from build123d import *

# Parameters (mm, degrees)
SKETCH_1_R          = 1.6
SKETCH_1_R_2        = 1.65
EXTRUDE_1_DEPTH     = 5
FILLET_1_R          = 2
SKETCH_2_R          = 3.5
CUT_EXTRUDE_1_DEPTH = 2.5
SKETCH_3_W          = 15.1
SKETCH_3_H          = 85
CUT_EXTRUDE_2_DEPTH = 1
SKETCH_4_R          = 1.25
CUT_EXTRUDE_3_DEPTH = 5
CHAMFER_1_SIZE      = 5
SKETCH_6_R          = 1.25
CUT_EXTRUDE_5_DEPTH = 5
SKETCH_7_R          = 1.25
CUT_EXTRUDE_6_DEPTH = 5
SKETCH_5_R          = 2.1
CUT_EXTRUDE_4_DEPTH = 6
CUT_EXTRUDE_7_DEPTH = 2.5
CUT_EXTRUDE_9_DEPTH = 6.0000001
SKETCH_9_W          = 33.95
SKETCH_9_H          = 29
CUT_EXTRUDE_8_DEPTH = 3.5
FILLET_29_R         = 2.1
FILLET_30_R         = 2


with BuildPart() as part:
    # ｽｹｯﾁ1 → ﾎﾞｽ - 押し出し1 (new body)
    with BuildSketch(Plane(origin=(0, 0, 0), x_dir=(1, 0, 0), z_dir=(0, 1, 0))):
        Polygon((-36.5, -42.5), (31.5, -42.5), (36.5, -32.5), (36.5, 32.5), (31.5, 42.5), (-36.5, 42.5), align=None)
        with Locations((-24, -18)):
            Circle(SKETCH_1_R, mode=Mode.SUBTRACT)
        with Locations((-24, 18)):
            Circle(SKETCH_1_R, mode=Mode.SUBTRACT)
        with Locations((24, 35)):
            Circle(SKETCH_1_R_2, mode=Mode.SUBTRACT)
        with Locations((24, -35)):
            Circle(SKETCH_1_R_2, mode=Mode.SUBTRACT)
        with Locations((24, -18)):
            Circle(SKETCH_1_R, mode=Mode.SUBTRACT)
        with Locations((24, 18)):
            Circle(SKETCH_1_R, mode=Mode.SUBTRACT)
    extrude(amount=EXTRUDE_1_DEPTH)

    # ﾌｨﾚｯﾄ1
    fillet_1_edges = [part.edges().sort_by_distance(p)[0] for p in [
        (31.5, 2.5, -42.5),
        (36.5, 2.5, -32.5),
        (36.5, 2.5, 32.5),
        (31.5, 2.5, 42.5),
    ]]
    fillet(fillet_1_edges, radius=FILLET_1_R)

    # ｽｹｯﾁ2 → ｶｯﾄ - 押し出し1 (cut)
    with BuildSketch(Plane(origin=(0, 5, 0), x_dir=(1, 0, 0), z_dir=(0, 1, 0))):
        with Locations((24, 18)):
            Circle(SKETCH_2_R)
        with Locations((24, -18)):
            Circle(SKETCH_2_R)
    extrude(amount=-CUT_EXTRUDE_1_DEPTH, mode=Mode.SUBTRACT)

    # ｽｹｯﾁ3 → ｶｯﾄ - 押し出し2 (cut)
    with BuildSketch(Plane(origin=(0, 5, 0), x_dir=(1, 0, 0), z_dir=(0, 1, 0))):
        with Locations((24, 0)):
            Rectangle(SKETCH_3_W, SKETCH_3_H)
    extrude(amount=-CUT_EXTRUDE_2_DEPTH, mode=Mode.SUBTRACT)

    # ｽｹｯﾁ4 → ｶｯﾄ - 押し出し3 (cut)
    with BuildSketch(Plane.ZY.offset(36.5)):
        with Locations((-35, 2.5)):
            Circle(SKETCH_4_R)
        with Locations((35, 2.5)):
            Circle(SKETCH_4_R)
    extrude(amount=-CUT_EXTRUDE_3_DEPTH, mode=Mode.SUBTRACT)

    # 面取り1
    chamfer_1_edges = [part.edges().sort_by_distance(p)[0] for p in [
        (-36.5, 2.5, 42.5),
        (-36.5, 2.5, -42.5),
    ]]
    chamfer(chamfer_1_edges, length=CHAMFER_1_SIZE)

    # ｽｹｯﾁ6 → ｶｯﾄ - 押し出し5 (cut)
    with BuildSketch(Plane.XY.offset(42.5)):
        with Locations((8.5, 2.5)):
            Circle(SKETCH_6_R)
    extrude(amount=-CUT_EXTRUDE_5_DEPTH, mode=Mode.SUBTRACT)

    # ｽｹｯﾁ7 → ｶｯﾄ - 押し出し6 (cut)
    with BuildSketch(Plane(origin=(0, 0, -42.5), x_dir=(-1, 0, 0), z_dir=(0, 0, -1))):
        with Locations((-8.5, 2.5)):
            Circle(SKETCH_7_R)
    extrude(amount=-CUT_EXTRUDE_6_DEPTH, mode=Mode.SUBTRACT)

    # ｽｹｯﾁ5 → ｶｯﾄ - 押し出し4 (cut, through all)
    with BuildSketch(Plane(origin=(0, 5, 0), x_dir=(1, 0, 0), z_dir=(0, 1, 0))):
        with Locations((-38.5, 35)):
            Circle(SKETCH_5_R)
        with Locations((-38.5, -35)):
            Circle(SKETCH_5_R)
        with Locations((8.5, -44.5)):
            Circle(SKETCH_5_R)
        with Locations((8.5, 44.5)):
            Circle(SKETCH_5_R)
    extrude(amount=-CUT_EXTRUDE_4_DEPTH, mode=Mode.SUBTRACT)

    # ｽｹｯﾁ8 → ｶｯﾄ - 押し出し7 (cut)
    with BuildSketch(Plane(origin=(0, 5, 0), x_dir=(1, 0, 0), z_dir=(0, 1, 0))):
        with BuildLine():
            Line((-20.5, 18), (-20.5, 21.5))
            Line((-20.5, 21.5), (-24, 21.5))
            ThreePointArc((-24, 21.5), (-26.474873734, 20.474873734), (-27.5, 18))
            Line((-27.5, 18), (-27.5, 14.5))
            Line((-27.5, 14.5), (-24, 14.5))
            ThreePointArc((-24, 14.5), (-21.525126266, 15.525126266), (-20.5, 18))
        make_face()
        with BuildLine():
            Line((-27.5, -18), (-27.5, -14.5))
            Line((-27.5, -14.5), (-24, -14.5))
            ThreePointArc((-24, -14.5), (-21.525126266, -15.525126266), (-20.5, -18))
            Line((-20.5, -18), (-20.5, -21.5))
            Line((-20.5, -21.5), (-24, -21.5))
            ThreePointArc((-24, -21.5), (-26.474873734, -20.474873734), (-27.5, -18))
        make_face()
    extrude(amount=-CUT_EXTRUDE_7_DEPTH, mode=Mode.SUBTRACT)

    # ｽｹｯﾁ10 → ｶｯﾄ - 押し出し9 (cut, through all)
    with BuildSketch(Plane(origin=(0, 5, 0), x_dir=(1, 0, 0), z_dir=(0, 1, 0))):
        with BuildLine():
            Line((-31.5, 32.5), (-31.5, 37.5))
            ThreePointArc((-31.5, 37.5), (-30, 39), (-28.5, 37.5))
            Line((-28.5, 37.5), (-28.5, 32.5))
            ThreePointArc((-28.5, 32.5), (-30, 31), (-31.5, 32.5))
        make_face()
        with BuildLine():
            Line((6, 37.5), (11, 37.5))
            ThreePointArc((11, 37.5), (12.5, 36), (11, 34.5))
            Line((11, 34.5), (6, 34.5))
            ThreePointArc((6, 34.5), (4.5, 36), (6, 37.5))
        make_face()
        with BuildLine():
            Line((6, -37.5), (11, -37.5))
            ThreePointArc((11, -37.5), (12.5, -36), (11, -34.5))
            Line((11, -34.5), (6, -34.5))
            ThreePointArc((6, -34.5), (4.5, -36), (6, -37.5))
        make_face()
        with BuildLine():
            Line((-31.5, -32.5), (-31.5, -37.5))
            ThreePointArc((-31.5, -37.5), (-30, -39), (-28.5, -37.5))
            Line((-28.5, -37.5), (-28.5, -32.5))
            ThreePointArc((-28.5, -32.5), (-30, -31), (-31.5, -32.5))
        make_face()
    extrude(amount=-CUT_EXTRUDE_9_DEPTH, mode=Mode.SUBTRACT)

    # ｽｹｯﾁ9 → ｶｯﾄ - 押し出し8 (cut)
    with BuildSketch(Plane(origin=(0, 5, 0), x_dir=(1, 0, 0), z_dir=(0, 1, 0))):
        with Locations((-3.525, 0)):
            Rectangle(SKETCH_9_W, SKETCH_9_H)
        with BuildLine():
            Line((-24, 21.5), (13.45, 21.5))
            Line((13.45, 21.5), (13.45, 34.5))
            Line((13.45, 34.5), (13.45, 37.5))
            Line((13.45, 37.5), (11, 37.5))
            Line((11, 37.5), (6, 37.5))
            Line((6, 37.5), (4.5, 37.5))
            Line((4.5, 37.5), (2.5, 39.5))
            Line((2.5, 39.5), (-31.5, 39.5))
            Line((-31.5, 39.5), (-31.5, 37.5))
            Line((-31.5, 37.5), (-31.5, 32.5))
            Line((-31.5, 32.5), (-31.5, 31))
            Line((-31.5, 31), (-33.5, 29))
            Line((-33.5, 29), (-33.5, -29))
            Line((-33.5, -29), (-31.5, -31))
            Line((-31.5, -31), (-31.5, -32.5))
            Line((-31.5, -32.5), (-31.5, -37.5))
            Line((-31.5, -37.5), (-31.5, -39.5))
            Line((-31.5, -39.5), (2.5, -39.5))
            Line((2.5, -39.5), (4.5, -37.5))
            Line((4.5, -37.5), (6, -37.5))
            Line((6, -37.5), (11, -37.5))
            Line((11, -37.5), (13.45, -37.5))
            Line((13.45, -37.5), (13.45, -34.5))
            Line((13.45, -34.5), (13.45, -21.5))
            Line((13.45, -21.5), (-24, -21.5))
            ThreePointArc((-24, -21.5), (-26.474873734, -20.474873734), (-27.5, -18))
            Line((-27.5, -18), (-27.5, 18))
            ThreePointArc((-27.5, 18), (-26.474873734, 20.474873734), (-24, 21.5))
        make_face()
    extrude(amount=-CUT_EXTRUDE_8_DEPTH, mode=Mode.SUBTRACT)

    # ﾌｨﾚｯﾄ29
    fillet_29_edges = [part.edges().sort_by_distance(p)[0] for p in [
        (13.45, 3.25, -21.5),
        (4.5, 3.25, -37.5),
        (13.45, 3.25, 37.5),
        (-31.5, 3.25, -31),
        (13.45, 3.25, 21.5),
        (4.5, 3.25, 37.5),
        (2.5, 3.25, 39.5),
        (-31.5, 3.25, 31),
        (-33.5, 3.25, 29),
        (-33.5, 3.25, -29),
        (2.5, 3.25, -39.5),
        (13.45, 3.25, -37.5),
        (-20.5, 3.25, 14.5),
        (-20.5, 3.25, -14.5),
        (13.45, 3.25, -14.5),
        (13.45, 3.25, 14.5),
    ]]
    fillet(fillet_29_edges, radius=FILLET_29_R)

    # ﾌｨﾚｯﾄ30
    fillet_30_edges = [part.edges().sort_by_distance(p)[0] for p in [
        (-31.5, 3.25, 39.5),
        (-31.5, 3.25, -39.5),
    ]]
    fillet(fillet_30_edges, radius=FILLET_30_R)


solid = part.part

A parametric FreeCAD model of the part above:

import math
import FreeCAD as App
import Part
import Sketcher
Q = App.Units.Quantity


def edges_at(feature, points):
    """Names of the edges that pass closest to the given points."""
    edges = feature.Shape.Edges
    near = lambda p: min(range(len(edges)), key=lambda i: edges[i].distToShape(Part.Vertex(*p))[0])
    return sorted({f"Edge{near(p) + 1}" for p in points})


def add_polygon(sketch, points):
    """Adds a closed chain of lines whose ends are joined by coincident constraints."""
    first, n = sketch.GeometryCount, len(points)
    for a, b in zip(points, points[1:] + points[:1]):
        sketch.addGeometry(Part.LineSegment(App.Vector(*a, 0), App.Vector(*b, 0)), False)
    for i in range(n):
        sketch.addConstraint(Sketcher.Constraint("Coincident", first + i, 2, first + (i + 1) % n, 1))

doc = App.newDocument("Part")
body = doc.addObject("PartDesign::Body", "Body")

# Sketch on XZ plane
sketch1 = body.newObject("Sketcher::SketchObject", "Sketch")
sketch1.AttachmentSupport = (doc.getObject("XZ_Plane"), [""])
sketch1.MapMode = "FlatFace"
add_polygon(sketch1, [(-36.5, 42.5), (31.5, 42.5), (36.5, 32.5), (36.5, -32.5), (31.5, -42.5), (-36.5, -42.5)])  # lines 0-5
sketch1.addGeometry(Part.Circle(App.Vector(-24, 18, 0), App.Vector(0, 0, 1), 1.6), False)  # 6
sketch1.addGeometry(Part.Circle(App.Vector(24, 35, 0), App.Vector(0, 0, 1), 1.65), False)  # 7
sketch1.addGeometry(Part.Circle(App.Vector(24, 18, 0), App.Vector(0, 0, 1), 1.6), False)  # 8
sketch1.addGeometry(Part.Circle(App.Vector(-24, -18, 0), App.Vector(0, 0, 1), 1.6), False)  # 9
sketch1.addGeometry(Part.Circle(App.Vector(24, -18, 0), App.Vector(0, 0, 1), 1.6), False)  # 10
sketch1.addGeometry(Part.Circle(App.Vector(24, -35, 0), App.Vector(0, 0, 1), 1.65), False)  # 11
sketch1.addConstraint([
    Sketcher.Constraint("Horizontal", 0),
    Sketcher.Constraint("Vertical", 2),
    Sketcher.Constraint("Horizontal", 4),
    Sketcher.Constraint("Vertical", 5),
    Sketcher.Constraint("Equal", 6, 8),
    Sketcher.Constraint("Equal", 8, 9),
    Sketcher.Constraint("Equal", 9, 10),
    Sketcher.Constraint("Equal", 7, 11),
    Sketcher.Constraint("Symmetric", 8, 3, 9, 3, -1, 1),
    Sketcher.Constraint("Symmetric", 6, 3, 10, 3, -1, 1),
    Sketcher.Constraint("Symmetric", 6, 3, 8, 3, -2),
    Sketcher.Constraint("Symmetric", 7, 3, 11, 3, -1),
    Sketcher.Constraint("Symmetric", 0, 2, 3, 2, -1),
    Sketcher.Constraint("Vertical", 7, 3, 8, 3),
    Sketcher.Constraint("Equal", 1, 3),
    Sketcher.Constraint("Diameter", 6, Q("3.2 mm")),
    Sketcher.Constraint("Diameter", 7, Q("3.3 mm")),
    Sketcher.Constraint("DistanceX", 0, 1, 0, 2, Q("68 mm")),
    Sketcher.Constraint("DistanceY", 2, 2, 2, 1, Q("65 mm")),
    Sketcher.Constraint("DistanceY", 5, 1, 5, 2, Q("85 mm")),
    Sketcher.Constraint("DistanceX", 6, 3, -1, 1, Q("24 mm")),
    Sketcher.Constraint("DistanceY", -1, 1, 6, 3, Q("18 mm")),
    Sketcher.Constraint("DistanceY", -1, 1, 7, 3, Q("35 mm")),
    Sketcher.Constraint("DistanceX", 0, 2, 1, 2, Q("5 mm")),
    Sketcher.Constraint("DistanceX", -1, 1, 0, 2, Q("31.5 mm")),
])
pad1 = body.newObject("PartDesign::Pad", "Pad")
pad1.Profile = sketch1
pad1.Length = 5
pad1.Reversed = True
doc.recompute()

fillet = body.newObject("PartDesign::Fillet", "Fillet")
fillet.Base = (pad1, edges_at(pad1, [
    (31.5, 2.5, -42.5),
    (36.5, 2.5, -32.5),
    (36.5, 2.5, 32.5),
    (31.5, 2.5, 42.5),
]))
fillet.Radius = 2

# Sketch on XZ plane
sketch2 = body.newObject("Sketcher::SketchObject", "Sketch001")
sketch2.AttachmentSupport = (doc.getObject("XZ_Plane"), [""])
sketch2.MapMode = "FlatFace"
sketch2.AttachmentOffset = App.Placement(App.Vector(0, 0, -5), App.Rotation())
sketch2.addGeometry([
    Part.Circle(App.Vector(24, -18, 0), App.Vector(0, 0, 1), 3.5),
    Part.Circle(App.Vector(24, 18, 0), App.Vector(0, 0, 1), 3.5),
], False)
sketch2.addConstraint([
    Sketcher.Constraint("Equal", 0, 1),
    Sketcher.Constraint("Symmetric", 0, 3, 1, 3, -1),
    Sketcher.Constraint("Diameter", 0, Q("7 mm")),
    Sketcher.Constraint("DistanceX", -1, 1, 0, 3, Q("24 mm")),
    Sketcher.Constraint("DistanceY", 0, 3, -1, 1, Q("18 mm")),
])
pocket1 = body.newObject("PartDesign::Pocket", "Pocket")
pocket1.Profile = sketch2
pocket1.Length = 2.5
pocket1.Reversed = True

# Sketch on XZ plane
sketch3 = body.newObject("Sketcher::SketchObject", "Sketch002")
sketch3.AttachmentSupport = (doc.getObject("XZ_Plane"), [""])
sketch3.MapMode = "FlatFace"
sketch3.AttachmentOffset = App.Placement(App.Vector(0, 0, -5), App.Rotation())
add_polygon(sketch3, [(16.45, -42.5), (16.45, 42.5), (31.55, 42.5), (31.55, -42.5)])  # lines 0-3
sketch3.addConstraint([
    Sketcher.Constraint("Vertical", 0),
    Sketcher.Constraint("Horizontal", 1),
    Sketcher.Constraint("Vertical", 2),
    Sketcher.Constraint("Horizontal", 3),
    Sketcher.Constraint("DistanceY", 0, 1, 0, 2, Q("85 mm")),
    Sketcher.Constraint("DistanceX", 1, 1, 1, 2, Q("15.1 mm")),
    Sketcher.Constraint("DistanceY", -1, 1, 0, 2, Q("42.5 mm")),
    Sketcher.Constraint("DistanceX", -1, 1, 0, 2, Q("16.45 mm")),
])
pocket2 = body.newObject("PartDesign::Pocket", "Pocket001")
pocket2.Profile = sketch3
pocket2.Length = 1
pocket2.Reversed = True

# Sketch on YZ plane
sketch4 = body.newObject("Sketcher::SketchObject", "Sketch003")
sketch4.AttachmentSupport = (doc.getObject("YZ_Plane"), [""])
sketch4.MapMode = "FlatFace"
sketch4.AttachmentOffset = App.Placement(App.Vector(0, 0, -36.5), App.Rotation())
sketch4.addGeometry([
    Part.Circle(App.Vector(2.5, -35, 0), App.Vector(0, 0, 1), 1.25),
    Part.Circle(App.Vector(2.5, 35, 0), App.Vector(0, 0, 1), 1.25),
], False)
sketch4.addConstraint([
    Sketcher.Constraint("Equal", 0, 1),
    Sketcher.Constraint("Symmetric", 0, 3, 1, 3, -1),
    Sketcher.Constraint("Diameter", 0, Q("2.5 mm")),
    Sketcher.Constraint("DistanceY", 0, 3, -1, 1, Q("35 mm")),
    Sketcher.Constraint("DistanceX", -1, 1, 0, 3, Q("2.5 mm")),
])
pocket3 = body.newObject("PartDesign::Pocket", "Pocket002")
pocket3.Profile = sketch4
pocket3.Length = 5
pocket3.Reversed = True
doc.recompute()

chamfer = body.newObject("PartDesign::Chamfer", "Chamfer")
chamfer.Base = (pocket3, edges_at(pocket3, [(-36.5, 2.5, 42.5), (-36.5, 2.5, -42.5)]))
chamfer.Size = 5

# Sketch on XY plane
sketch5 = body.newObject("Sketcher::SketchObject", "Sketch004")
sketch5.AttachmentSupport = (doc.getObject("XY_Plane"), [""])
sketch5.MapMode = "FlatFace"
sketch5.AttachmentOffset = App.Placement(App.Vector(0, 0, 42.5), App.Rotation())
sketch5.addGeometry(Part.Circle(App.Vector(8.5, 2.5, 0), App.Vector(0, 0, 1), 1.25), False)
sketch5.addConstraint([
    Sketcher.Constraint("Diameter", 0, Q("2.5 mm")),
    Sketcher.Constraint("DistanceX", -1, 1, 0, 3, Q("8.5 mm")),
    Sketcher.Constraint("DistanceY", -1, 1, 0, 3, Q("2.5 mm")),
])
pocket4 = body.newObject("PartDesign::Pocket", "Pocket003")
pocket4.Profile = sketch5
pocket4.Length = 5

# Sketch on XY plane
sketch6 = body.newObject("Sketcher::SketchObject", "Sketch005")
sketch6.AttachmentSupport = (doc.getObject("XY_Plane"), [""])
sketch6.MapMode = "FlatFace"
sketch6.AttachmentOffset = App.Placement(App.Vector(0, 0, -42.5), App.Rotation())
sketch6.addGeometry(Part.Circle(App.Vector(8.5, 2.5, 0), App.Vector(0, 0, 1), 1.25), False)
sketch6.addConstraint([
    Sketcher.Constraint("Diameter", 0, Q("2.5 mm")),
    Sketcher.Constraint("DistanceX", -1, 1, 0, 3, Q("8.5 mm")),
    Sketcher.Constraint("DistanceY", -1, 1, 0, 3, Q("2.5 mm")),
])
pocket5 = body.newObject("PartDesign::Pocket", "Pocket004")
pocket5.Profile = sketch6
pocket5.Length = 5
pocket5.Reversed = True

# Sketch on XZ plane
sketch7 = body.newObject("Sketcher::SketchObject", "Sketch006")
sketch7.AttachmentSupport = (doc.getObject("XZ_Plane"), [""])
sketch7.MapMode = "FlatFace"
sketch7.AttachmentOffset = App.Placement(App.Vector(0, 0, -5), App.Rotation())
sketch7.addGeometry([
    Part.Circle(App.Vector(-38.5, -35, 0), App.Vector(0, 0, 1), 2.1),
    Part.Circle(App.Vector(-38.5, 35, 0), App.Vector(0, 0, 1), 2.1),
    Part.Circle(App.Vector(8.5, 44.5, 0), App.Vector(0, 0, 1), 2.1),
    Part.Circle(App.Vector(8.5, -44.5, 0), App.Vector(0, 0, 1), 2.1),
], False)
sketch7.addConstraint([
    Sketcher.Constraint("Equal", 0, 1),
    Sketcher.Constraint("Equal", 1, 2),
    Sketcher.Constraint("Equal", 2, 3),
    Sketcher.Constraint("Symmetric", 0, 3, 1, 3, -1),
    Sketcher.Constraint("Symmetric", 2, 3, 3, 3, -1),
    Sketcher.Constraint("Diameter", 0, Q("4.2 mm")),
    Sketcher.Constraint("DistanceY", 0, 3, -1, 1, Q("35 mm")),
    Sketcher.Constraint("DistanceX", 1, 3, 2, 3, Q("47 mm")),
    Sketcher.Constraint("DistanceY", 3, 3, 2, 3, Q("89 mm")),
    Sketcher.Constraint("DistanceX", 0, 3, -1, 1, Q("38.5 mm")),
])
pocket6 = body.newObject("PartDesign::Pocket", "Pocket005")
pocket6.Profile = sketch7
pocket6.Type = "ThroughAll"
pocket6.Reversed = True

# Sketch on XZ plane
sketch8 = body.newObject("Sketcher::SketchObject", "Sketch007")
sketch8.AttachmentSupport = (doc.getObject("XZ_Plane"), [""])
sketch8.MapMode = "FlatFace"
sketch8.AttachmentOffset = App.Placement(App.Vector(0, 0, -5), App.Rotation())
sketch8.addGeometry([
    Part.LineSegment(App.Vector(-20.5, -18, 0), App.Vector(-20.5, -21.5, 0)),  # 0
    Part.LineSegment(App.Vector(-20.5, -21.5, 0), App.Vector(-24, -21.5, 0)),  # 1
    Part.ArcOfCircle(Part.Circle(App.Vector(-24, -18, 0), App.Vector(0, 0, 1), 3.5), math.radians(-180), math.radians(-90)),  # 2
    Part.LineSegment(App.Vector(-27.5, -18, 0), App.Vector(-27.5, -14.5, 0)),  # 3
    Part.LineSegment(App.Vector(-27.5, -14.5, 0), App.Vector(-24, -14.5, 0)),  # 4
    Part.ArcOfCircle(Part.Circle(App.Vector(-24, -18, 0), App.Vector(0, 0, 1), 3.5), math.radians(0), math.radians(90)),  # 5
    Part.LineSegment(App.Vector(-27.5, 14.5, 0), App.Vector(-27.5, 18, 0)),  # 6
    Part.ArcOfCircle(Part.Circle(App.Vector(-24, 18, 0), App.Vector(0, 0, 1), 3.5), math.radians(90), math.radians(180)),  # 7
    Part.LineSegment(App.Vector(-24, 21.5, 0), App.Vector(-20.5, 21.5, 0)),  # 8
    Part.LineSegment(App.Vector(-20.5, 21.5, 0), App.Vector(-20.5, 18, 0)),  # 9
    Part.ArcOfCircle(Part.Circle(App.Vector(-24, 18, 0), App.Vector(0, 0, 1), 3.5), math.radians(-90), math.radians(0)),  # 10
    Part.LineSegment(App.Vector(-24, 14.5, 0), App.Vector(-27.5, 14.5, 0)),  # 11
], False)
sketch8.addConstraint([
    Sketcher.Constraint("Coincident", 0, 2, 1, 1),
    Sketcher.Constraint("Tangent", 1, 2, 2, 2),
    Sketcher.Constraint("Tangent", 2, 1, 3, 1),
    Sketcher.Constraint("Coincident", 3, 2, 4, 1),
    Sketcher.Constraint("Tangent", 4, 2, 5, 2),
    Sketcher.Constraint("Tangent", 5, 1, 0, 1),
    Sketcher.Constraint("Tangent", 6, 2, 7, 2),
    Sketcher.Constraint("Tangent", 7, 1, 8, 1),
    Sketcher.Constraint("Coincident", 8, 2, 9, 1),
    Sketcher.Constraint("Tangent", 9, 2, 10, 2),
    Sketcher.Constraint("Tangent", 10, 1, 11, 1),
    Sketcher.Constraint("Coincident", 11, 2, 6, 1),
    Sketcher.Constraint("Vertical", 0),
    Sketcher.Constraint("Horizontal", 1),
    Sketcher.Constraint("Vertical", 3),
    Sketcher.Constraint("Horizontal", 4),
    Sketcher.Constraint("Vertical", 6),
    Sketcher.Constraint("Horizontal", 8),
    Sketcher.Constraint("Vertical", 9),
    Sketcher.Constraint("Horizontal", 11),
    Sketcher.Constraint("Coincident", 5, 3, 2, 3),
    Sketcher.Constraint("Coincident", 10, 3, 7, 3),
    Sketcher.Constraint("Equal", 2, 5),
    Sketcher.Constraint("Equal", 5, 7),
    Sketcher.Constraint("Equal", 7, 10),
    Sketcher.Constraint("Symmetric", 2, 3, 7, 3, -1),
    Sketcher.Constraint("Radius", 2, Q("3.5 mm")),
    Sketcher.Constraint("DistanceX", 2, 3, -1, 1, Q("24 mm")),
    Sketcher.Constraint("DistanceY", 2, 3, -1, 1, Q("18 mm")),
])
pocket7 = body.newObject("PartDesign::Pocket", "Pocket006")
pocket7.Profile = sketch8
pocket7.Length = 2.5
pocket7.Reversed = True

# Sketch on XZ plane
sketch9 = body.newObject("Sketcher::SketchObject", "Sketch008")
sketch9.AttachmentSupport = (doc.getObject("XZ_Plane"), [""])
sketch9.MapMode = "FlatFace"
sketch9.AttachmentOffset = App.Placement(App.Vector(0, 0, -5), App.Rotation())
sketch9.addGeometry([
    Part.LineSegment(App.Vector(-31.5, -37.5, 0), App.Vector(-31.5, -32.5, 0)),  # 0
    Part.ArcOfCircle(Part.Circle(App.Vector(-30, -32.5, 0), App.Vector(0, 0, 1), 1.5), math.radians(0), math.radians(180)),  # 1
    Part.LineSegment(App.Vector(-28.5, -32.5, 0), App.Vector(-28.5, -37.5, 0)),  # 2
    Part.ArcOfCircle(Part.Circle(App.Vector(-30, -37.5, 0), App.Vector(0, 0, 1), 1.5), math.radians(180), math.radians(360)),  # 3
    Part.LineSegment(App.Vector(11, -37.5, 0), App.Vector(6, -37.5, 0)),  # 4
    Part.ArcOfCircle(Part.Circle(App.Vector(6, -36, 0), App.Vector(0, 0, 1), 1.5), math.radians(90), math.radians(270)),  # 5
    Part.LineSegment(App.Vector(6, -34.5, 0), App.Vector(11, -34.5, 0)),  # 6
    Part.ArcOfCircle(Part.Circle(App.Vector(11, -36, 0), App.Vector(0, 0, 1), 1.5), math.radians(-90), math.radians(90)),  # 7
    Part.LineSegment(App.Vector(6, 37.5, 0), App.Vector(11, 37.5, 0)),  # 8
    Part.ArcOfCircle(Part.Circle(App.Vector(11, 36, 0), App.Vector(0, 0, 1), 1.5), math.radians(-90), math.radians(90)),  # 9
    Part.LineSegment(App.Vector(11, 34.5, 0), App.Vector(6, 34.5, 0)),  # 10
    Part.ArcOfCircle(Part.Circle(App.Vector(6, 36, 0), App.Vector(0, 0, 1), 1.5), math.radians(90), math.radians(270)),  # 11
    Part.LineSegment(App.Vector(-31.5, 32.5, 0), App.Vector(-31.5, 37.5, 0)),  # 12
    Part.ArcOfCircle(Part.Circle(App.Vector(-30, 37.5, 0), App.Vector(0, 0, 1), 1.5), math.radians(0), math.radians(180)),  # 13
    Part.LineSegment(App.Vector(-28.5, 37.5, 0), App.Vector(-28.5, 32.5, 0)),  # 14
    Part.ArcOfCircle(Part.Circle(App.Vector(-30, 32.5, 0), App.Vector(0, 0, 1), 1.5), math.radians(180), math.radians(360)),  # 15
], False)
sketch9.addConstraint([
    Sketcher.Constraint("Tangent", 0, 2, 1, 2),
    Sketcher.Constraint("Tangent", 1, 1, 2, 1),
    Sketcher.Constraint("Tangent", 2, 2, 3, 2),
    Sketcher.Constraint("Tangent", 3, 1, 0, 1),
    Sketcher.Constraint("Tangent", 4, 2, 5, 2),
    Sketcher.Constraint("Tangent", 5, 1, 6, 1),
    Sketcher.Constraint("Tangent", 6, 2, 7, 2),
    Sketcher.Constraint("Tangent", 7, 1, 4, 1),
    Sketcher.Constraint("Tangent", 8, 2, 9, 2),
    Sketcher.Constraint("Tangent", 9, 1, 10, 1),
    Sketcher.Constraint("Tangent", 10, 2, 11, 2),
    Sketcher.Constraint("Tangent", 11, 1, 8, 1),
    Sketcher.Constraint("Tangent", 12, 2, 13, 2),
    Sketcher.Constraint("Tangent", 13, 1, 14, 1),
    Sketcher.Constraint("Tangent", 14, 2, 15, 2),
    Sketcher.Constraint("Tangent", 15, 1, 12, 1),
    Sketcher.Constraint("Vertical", 0),
    Sketcher.Constraint("Vertical", 2),
    Sketcher.Constraint("Horizontal", 4),
    Sketcher.Constraint("Horizontal", 6),
    Sketcher.Constraint("Horizontal", 8),
    Sketcher.Constraint("Horizontal", 10),
    Sketcher.Constraint("Vertical", 12),
    Sketcher.Constraint("Vertical", 14),
    Sketcher.Constraint("Equal", 3, 5),
    Sketcher.Constraint("Equal", 7, 9),
    Sketcher.Constraint("Equal", 11, 13),
    Sketcher.Constraint("Symmetric", 7, 3, 9, 3, -1),
    Sketcher.Constraint("Symmetric", 3, 3, 13, 3, -1),
    Sketcher.Constraint("Horizontal", 3, 1, 4, 2),
    Sketcher.Constraint("Vertical", 5, 3, 11, 3),
    Sketcher.Constraint("Equal", 10, 0),
    Sketcher.Constraint("Equal", 2, 12),
    Sketcher.Constraint("Radius", 1, Q("1.5 mm")),
    Sketcher.Constraint("DistanceX", 4, 2, 4, 1, Q("5 mm")),
    Sketcher.Constraint("DistanceX", 1, 3, -1, 1, Q("30 mm")),
    Sketcher.Constraint("DistanceX", -1, 1, 5, 3, Q("6 mm")),
    Sketcher.Constraint("DistanceY", 5, 3, -1, 1, Q("36 mm")),
])
pocket8 = body.newObject("PartDesign::Pocket", "Pocket007")
pocket8.Profile = sketch9
pocket8.Type = "ThroughAll"
pocket8.Reversed = True

# Sketch on XZ plane
sketch10 = body.newObject("Sketcher::SketchObject", "Sketch009")
sketch10.AttachmentSupport = (doc.getObject("XZ_Plane"), [""])
sketch10.MapMode = "FlatFace"
sketch10.AttachmentOffset = App.Placement(App.Vector(0, 0, -5), App.Rotation())
add_polygon(sketch10, [(-20.5, -14.5), (-20.5, 14.5), (13.45, 14.5), (13.45, -14.5)])  # lines 0-3
sketch10.addGeometry(Part.LineSegment(App.Vector(-24, -21.5, 0), App.Vector(13.45, -21.5, 0)), False)  # 4
sketch10.addGeometry(Part.LineSegment(App.Vector(13.45, -21.5, 0), App.Vector(13.45, -37.5, 0)), False)  # 5
sketch10.addGeometry(Part.LineSegment(App.Vector(13.45, -37.5, 0), App.Vector(4.5, -37.5, 0)), False)  # 6
sketch10.addGeometry(Part.LineSegment(App.Vector(4.5, -37.5, 0), App.Vector(2.5, -39.5, 0)), False)  # 7
sketch10.addGeometry(Part.LineSegment(App.Vector(2.5, -39.5, 0), App.Vector(-31.5, -39.5, 0)), False)  # 8
sketch10.addGeometry(Part.LineSegment(App.Vector(-31.5, -39.5, 0), App.Vector(-31.5, -31, 0)), False)  # 9
sketch10.addGeometry(Part.LineSegment(App.Vector(-31.5, -31, 0), App.Vector(-33.5, -29, 0)), False)  # 10
sketch10.addGeometry(Part.LineSegment(App.Vector(-33.5, -29, 0), App.Vector(-33.5, 29, 0)), False)  # 11
sketch10.addGeometry(Part.LineSegment(App.Vector(-33.5, 29, 0), App.Vector(-31.5, 31, 0)), False)  # 12
sketch10.addGeometry(Part.LineSegment(App.Vector(-31.5, 31, 0), App.Vector(-31.5, 39.5, 0)), False)  # 13
sketch10.addGeometry(Part.LineSegment(App.Vector(-31.5, 39.5, 0), App.Vector(2.5, 39.5, 0)), False)  # 14
sketch10.addGeometry(Part.LineSegment(App.Vector(2.5, 39.5, 0), App.Vector(4.5, 37.5, 0)), False)  # 15
sketch10.addGeometry(Part.LineSegment(App.Vector(4.5, 37.5, 0), App.Vector(13.45, 37.5, 0)), False)  # 16
sketch10.addGeometry(Part.LineSegment(App.Vector(13.45, 37.5, 0), App.Vector(13.45, 21.5, 0)), False)  # 17
sketch10.addGeometry(Part.LineSegment(App.Vector(13.45, 21.5, 0), App.Vector(-24, 21.5, 0)), False)  # 18
sketch10.addGeometry(Part.ArcOfCircle(Part.Circle(App.Vector(-24, 18, 0), App.Vector(0, 0, 1), 3.5), math.radians(90), math.radians(180)), False)  # 19
sketch10.addGeometry(Part.LineSegment(App.Vector(-27.5, 18, 0), App.Vector(-27.5, -18, 0)), False)  # 20
sketch10.addGeometry(Part.ArcOfCircle(Part.Circle(App.Vector(-24, -18, 0), App.Vector(0, 0, 1), 3.5), math.radians(-180), math.radians(-90)), False)  # 21
sketch10.addConstraint([
    Sketcher.Constraint("Coincident", 4, 2, 5, 1),
    Sketcher.Constraint("Coincident", 5, 2, 6, 1),
    Sketcher.Constraint("Coincident", 6, 2, 7, 1),
    Sketcher.Constraint("Coincident", 7, 2, 8, 1),
    Sketcher.Constraint("Coincident", 8, 2, 9, 1),
    Sketcher.Constraint("Coincident", 9, 2, 10, 1),
    Sketcher.Constraint("Coincident", 10, 2, 11, 1),
    Sketcher.Constraint("Coincident", 11, 2, 12, 1),
    Sketcher.Constraint("Coincident", 12, 2, 13, 1),
    Sketcher.Constraint("Coincident", 13, 2, 14, 1),
    Sketcher.Constraint("Coincident", 14, 2, 15, 1),
    Sketcher.Constraint("Coincident", 15, 2, 16, 1),
    Sketcher.Constraint("Coincident", 16, 2, 17, 1),
    Sketcher.Constraint("Coincident", 17, 2, 18, 1),
    Sketcher.Constraint("Tangent", 18, 2, 19, 1),
    Sketcher.Constraint("Tangent", 19, 2, 20, 1),
    Sketcher.Constraint("Tangent", 20, 2, 21, 1),
    Sketcher.Constraint("Tangent", 21, 2, 4, 1),
    Sketcher.Constraint("Vertical", 0),
    Sketcher.Constraint("Horizontal", 1),
    Sketcher.Constraint("Vertical", 2),
    Sketcher.Constraint("Horizontal", 3),
    Sketcher.Constraint("Horizontal", 4),
    Sketcher.Constraint("Vertical", 5),
    Sketcher.Constraint("Horizontal", 6),
    Sketcher.Constraint("Horizontal", 8),
    Sketcher.Constraint("Vertical", 9),
    Sketcher.Constraint("Vertical", 11),
    Sketcher.Constraint("Vertical", 13),
    Sketcher.Constraint("Horizontal", 14),
    Sketcher.Constraint("Horizontal", 16),
    Sketcher.Constraint("Vertical", 17),
    Sketcher.Constraint("Horizontal", 18),
    Sketcher.Constraint("Vertical", 20),
    Sketcher.Constraint("Equal", 19, 21),
    Sketcher.Constraint("Symmetric", 9, 2, 12, 2, -1),
    Sketcher.Constraint("Symmetric", 7, 2, 14, 2, -1),
    Sketcher.Constraint("Symmetric", 6, 2, 15, 2, -1),
    Sketcher.Constraint("Symmetric", 4, 2, 17, 2, -1),
    Sketcher.Constraint("Perpendicular", 7, 10),
    Sketcher.Constraint("Perpendicular", 10, 12),
    Sketcher.Constraint("Perpendicular", 12, 15),
    Sketcher.Constraint("Vertical", 2, 2, 4, 2),
    Sketcher.Constraint("Equal", 7, 10),
    Sketcher.Constraint("Radius", 19, Q("3.5 mm")),
    Sketcher.Constraint("DistanceX", 8, 2, 8, 1, Q("34 mm")),
    Sketcher.Constraint("DistanceY", 0, 1, 0, 2, Q("29 mm")),
    Sketcher.Constraint("DistanceY", 5, 2, 5, 1, Q("16 mm")),
    Sketcher.Constraint("DistanceY", 11, 1, 11, 2, Q("58 mm")),
    Sketcher.Constraint("DistanceY", 20, 2, 20, 1, Q("36 mm")),
    Sketcher.Constraint("DistanceX", 19, 3, -1, 1, Q("24 mm")),
    Sketcher.Constraint("DistanceY", 9, 2, -1, 1, Q("31 mm")),
    Sketcher.Constraint("DistanceY", 4, 2, 2, 2, Q("7 mm")),
    Sketcher.Constraint("DistanceX", 3, 2, 6, 2, Q("25 mm")),
    Sketcher.Constraint("DistanceX", 19, 2, 0, 2, Q("7 mm")),
    Sketcher.Constraint("DistanceX", 1, 1, 1, 2, Q("33.95 mm")),
])
pocket9 = body.newObject("PartDesign::Pocket", "Pocket008")
pocket9.Profile = sketch10
pocket9.Length = 3.5
pocket9.Reversed = True
doc.recompute()

fillet2 = body.newObject("PartDesign::Fillet", "Fillet001")
fillet2.Base = (pocket9, edges_at(pocket9, [
    (13.45, 3.25, -21.5),
    (4.5, 3.25, -37.5),
    (13.45, 3.25, 37.5),
    (-31.5, 3.25, -31),
    (13.45, 3.25, 21.5),
    (4.5, 3.25, 37.5),
    (2.5, 3.25, 39.5),
    (-31.5, 3.25, 31),
    (-33.5, 3.25, 29),
    (-33.5, 3.25, -29),
    (2.5, 3.25, -39.5),
    (13.45, 3.25, -37.5),
    (-20.5, 3.25, 14.5),
    (-20.5, 3.25, -14.5),
    (13.45, 3.25, -14.5),
    (13.45, 3.25, 14.5),
]))
fillet2.Radius = 2.1
doc.recompute()

fillet3 = body.newObject("PartDesign::Fillet", "Fillet002")
fillet3.Base = (fillet2, edges_at(fillet2, [(-31.5, 3.25, 39.5), (-31.5, 3.25, -39.5)]))
fillet3.Radius = 2

doc.recompute()
